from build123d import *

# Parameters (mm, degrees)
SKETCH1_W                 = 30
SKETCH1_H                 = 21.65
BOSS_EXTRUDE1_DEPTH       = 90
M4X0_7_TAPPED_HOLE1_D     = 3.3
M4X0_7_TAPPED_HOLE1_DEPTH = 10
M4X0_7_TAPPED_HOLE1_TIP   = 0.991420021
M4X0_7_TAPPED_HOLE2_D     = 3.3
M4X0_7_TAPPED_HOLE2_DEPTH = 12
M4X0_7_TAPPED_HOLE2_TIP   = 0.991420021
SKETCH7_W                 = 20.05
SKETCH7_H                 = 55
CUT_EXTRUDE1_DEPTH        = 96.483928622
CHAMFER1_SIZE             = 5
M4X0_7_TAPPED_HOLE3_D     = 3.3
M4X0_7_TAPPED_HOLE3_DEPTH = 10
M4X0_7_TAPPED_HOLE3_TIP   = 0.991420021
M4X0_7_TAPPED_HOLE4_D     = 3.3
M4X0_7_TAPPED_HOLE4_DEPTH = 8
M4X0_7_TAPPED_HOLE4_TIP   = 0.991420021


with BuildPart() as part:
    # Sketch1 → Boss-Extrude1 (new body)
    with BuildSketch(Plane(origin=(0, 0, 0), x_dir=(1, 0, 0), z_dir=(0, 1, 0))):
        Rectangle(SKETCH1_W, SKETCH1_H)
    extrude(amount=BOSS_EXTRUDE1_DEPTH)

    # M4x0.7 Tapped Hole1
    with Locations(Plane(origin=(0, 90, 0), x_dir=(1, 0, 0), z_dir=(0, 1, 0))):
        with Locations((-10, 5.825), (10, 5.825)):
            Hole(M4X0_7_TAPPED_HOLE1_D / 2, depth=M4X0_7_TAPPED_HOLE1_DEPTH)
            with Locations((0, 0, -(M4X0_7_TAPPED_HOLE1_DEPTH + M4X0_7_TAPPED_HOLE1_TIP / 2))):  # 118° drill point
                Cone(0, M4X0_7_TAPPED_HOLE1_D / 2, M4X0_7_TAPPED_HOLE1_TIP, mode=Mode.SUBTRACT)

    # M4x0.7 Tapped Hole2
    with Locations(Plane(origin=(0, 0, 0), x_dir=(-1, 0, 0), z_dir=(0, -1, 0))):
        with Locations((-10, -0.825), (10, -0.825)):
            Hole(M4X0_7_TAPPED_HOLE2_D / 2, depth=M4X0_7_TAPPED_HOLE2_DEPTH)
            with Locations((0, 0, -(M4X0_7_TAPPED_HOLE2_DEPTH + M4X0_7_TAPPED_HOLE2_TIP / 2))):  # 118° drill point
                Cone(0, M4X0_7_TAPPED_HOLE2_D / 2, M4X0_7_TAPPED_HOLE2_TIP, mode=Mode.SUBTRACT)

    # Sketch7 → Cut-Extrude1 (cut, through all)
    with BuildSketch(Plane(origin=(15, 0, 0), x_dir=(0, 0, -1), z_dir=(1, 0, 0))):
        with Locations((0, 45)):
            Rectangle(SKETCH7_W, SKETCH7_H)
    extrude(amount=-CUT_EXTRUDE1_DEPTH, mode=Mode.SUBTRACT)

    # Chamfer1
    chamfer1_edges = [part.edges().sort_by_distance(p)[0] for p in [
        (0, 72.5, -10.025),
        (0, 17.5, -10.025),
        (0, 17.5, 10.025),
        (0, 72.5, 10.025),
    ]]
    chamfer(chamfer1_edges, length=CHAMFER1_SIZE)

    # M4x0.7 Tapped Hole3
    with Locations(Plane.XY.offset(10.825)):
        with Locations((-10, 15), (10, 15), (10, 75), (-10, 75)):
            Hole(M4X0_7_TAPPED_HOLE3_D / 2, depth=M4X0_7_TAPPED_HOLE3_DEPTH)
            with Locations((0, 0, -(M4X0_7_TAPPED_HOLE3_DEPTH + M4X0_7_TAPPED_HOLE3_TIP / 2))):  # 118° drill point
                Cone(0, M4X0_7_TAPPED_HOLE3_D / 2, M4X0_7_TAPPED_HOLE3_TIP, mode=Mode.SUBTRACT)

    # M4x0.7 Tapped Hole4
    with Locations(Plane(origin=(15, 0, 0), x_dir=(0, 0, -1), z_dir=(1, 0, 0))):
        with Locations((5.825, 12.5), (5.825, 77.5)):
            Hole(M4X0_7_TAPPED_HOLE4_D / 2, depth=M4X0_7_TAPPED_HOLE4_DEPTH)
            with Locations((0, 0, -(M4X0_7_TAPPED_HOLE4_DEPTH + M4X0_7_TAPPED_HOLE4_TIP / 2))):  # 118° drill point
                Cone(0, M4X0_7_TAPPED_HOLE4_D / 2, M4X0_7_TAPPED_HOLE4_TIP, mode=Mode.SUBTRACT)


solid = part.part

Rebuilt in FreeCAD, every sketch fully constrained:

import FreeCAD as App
import Part
import Sketcher

V = App.Vector
Q = App.Units.Quantity


def edges_at(feature, points):
    """Names of the edges that pass closest to the given points."""
    edges = feature.Shape.Edges
    near = lambda p: min(range(len(edges)), key=lambda i: edges[i].distToShape(Part.Vertex(*p))[0])
    return sorted({f"Edge{near(p) + 1}" for p in points})

doc = App.newDocument("Part")
body = doc.addObject("PartDesign::Body", "Body")

sketch1 = body.newObject("Sketcher::SketchObject", "Sketch")
sketch1.AttachmentSupport = (doc.getObject("XZ_Plane"), [""])
sketch1.MapMode = "FlatFace"
sketch1.addGeometry(Part.LineSegment(V(-15, -10.825, 0), V(-15, 10.825, 0)), False)
sketch1.addGeometry(Part.LineSegment(V(-15, 10.825, 0), V(15, 10.825, 0)), False)
sketch1.addGeometry(Part.LineSegment(V(15, 10.825, 0), V(15, -10.825, 0)), False)
sketch1.addGeometry(Part.LineSegment(V(15, -10.825, 0), V(-15, -10.825, 0)), False)
sketch1.addConstraint(Sketcher.Constraint("Coincident", 0, 2, 1, 1))
sketch1.addConstraint(Sketcher.Constraint("Coincident", 1, 2, 2, 1))
sketch1.addConstraint(Sketcher.Constraint("Coincident", 2, 2, 3, 1))
sketch1.addConstraint(Sketcher.Constraint("Coincident", 3, 2, 0, 1))
sketch1.addConstraint(Sketcher.Constraint("Vertical", 0))
sketch1.addConstraint(Sketcher.Constraint("Horizontal", 1))
sketch1.addConstraint(Sketcher.Constraint("Vertical", 2))
sketch1.addConstraint(Sketcher.Constraint("Horizontal", 3))
sketch1.addConstraint(Sketcher.Constraint("Symmetric", 0, 2, 2, 2, -1, 1))
sketch1.addConstraint(Sketcher.Constraint("DistanceX", 1, 1, 1, 2, Q("30 mm")))
sketch1.addConstraint(Sketcher.Constraint("DistanceY", 0, 1, 0, 2, Q("21.65 mm")))
pad1 = body.newObject("PartDesign::Pad", "Pad")
pad1.Profile = sketch1
pad1.Length = 90
pad1.Reversed = True

sketch2 = body.newObject("Sketcher::SketchObject", "Sketch001")
sketch2.AttachmentSupport = (doc.getObject("XZ_Plane"), [""])
sketch2.MapMode = "FlatFace"
sketch2.AttachmentOffset = App.Placement(V(0, 0, -90), App.Rotation())
sketch2.addGeometry(Part.Circle(V(-10, -5.825, 0), V(0, 0, 1), 1.65), False)
sketch2.addGeometry(Part.Circle(V(10, -5.825, 0), V(0, 0, 1), 1.65), False)
sketch2.addConstraint(Sketcher.Constraint("Equal", 0, 1))
sketch2.addConstraint(Sketcher.Constraint("Symmetric", 0, 3, 1, 3, -2))
sketch2.addConstraint(Sketcher.Constraint("Diameter", 0, Q("3.3 mm")))
sketch2.addConstraint(Sketcher.Constraint("DistanceX", 0, 3, -1, 1, Q("10 mm")))
sketch2.addConstraint(Sketcher.Constraint("DistanceY", 0, 3, -1, 1, Q("5.825 mm")))
doc.recompute()
hole = body.newObject("PartDesign::Hole", "Hole")
hole.Profile = sketch2
hole.ThreadType = "None"
hole.Diameter = 3.3
hole.DepthType = "Dimension"
hole.Depth = 10
hole.DrillPoint = "Angled"
hole.DrillPointAngle = 118
hole.Reversed = True

sketch3 = body.newObject("Sketcher::SketchObject", "Sketch002")
sketch3.AttachmentSupport = (doc.getObject("XZ_Plane"), [""])
sketch3.MapMode = "FlatFace"
sketch3.addGeometry(Part.Circle(V(10, 0.825, 0), V(0, 0, 1), 1.65), False)
sketch3.addGeometry(Part.Circle(V(-10, 0.825, 0), V(0, 0, 1), 1.65), False)
sketch3.addConstraint(Sketcher.Constraint("Equal", 0, 1))
sketch3.addConstraint(Sketcher.Constraint("Symmetric", 0, 3, 1, 3, -2))
sketch3.addConstraint(Sketcher.Constraint("Diameter", 0, Q("3.3 mm")))
sketch3.addConstraint(Sketcher.Constraint("DistanceX", -1, 1, 0, 3, Q("10 mm")))
sketch3.addConstraint(Sketcher.Constraint("DistanceY", -1, 1, 0, 3, Q("0.825 mm")))
doc.recompute()
hole2 = body.newObject("PartDesign::Hole", "Hole001")
hole2.Profile = sketch3
hole2.ThreadType = "None"
hole2.Diameter = 3.3
hole2.DepthType = "Dimension"
hole2.Depth = 12
hole2.DrillPoint = "Angled"
hole2.DrillPointAngle = 118

sketch4 = body.newObject("Sketcher::SketchObject", "Sketch003")
sketch4.AttachmentSupport = (doc.getObject("YZ_Plane"), [""])
sketch4.MapMode = "FlatFace"
sketch4.AttachmentOffset = App.Placement(V(0, 0, 15), App.Rotation())
sketch4.addGeometry(Part.LineSegment(V(72.5, 10.025, 0), V(17.5, 10.025, 0)), False)
sketch4.addGeometry(Part.LineSegment(V(17.5, 10.025, 0), V(17.5, -10.025, 0)), False)
sketch4.addGeometry(Part.LineSegment(V(17.5, -10.025, 0), V(72.5, -10.025, 0)), False)
sketch4.addGeometry(Part.LineSegment(V(72.5, -10.025, 0), V(72.5, 10.025, 0)), False)
sketch4.addConstraint(Sketcher.Constraint("Coincident", 0, 2, 1, 1))
sketch4.addConstraint(Sketcher.Constraint("Coincident", 1, 2, 2, 1))
sketch4.addConstraint(Sketcher.Constraint("Coincident", 2, 2, 3, 1))
sketch4.addConstraint(Sketcher.Constraint("Coincident", 3, 2, 0, 1))
sketch4.addConstraint(Sketcher.Constraint("Horizontal", 0))
sketch4.addConstraint(Sketcher.Constraint("Vertical", 1))
sketch4.addConstraint(Sketcher.Constraint("Horizontal", 2))
sketch4.addConstraint(Sketcher.Constraint("Vertical", 3))
sketch4.addConstraint(Sketcher.Constraint("DistanceX", 0, 2, 0, 1, Q("55 mm")))
sketch4.addConstraint(Sketcher.Constraint("DistanceY", 1, 2, 1, 1, Q("20.05 mm")))
sketch4.addConstraint(Sketcher.Constraint("DistanceX", -1, 1, 0, 2, Q("17.5 mm")))
sketch4.addConstraint(Sketcher.Constraint("DistanceY", -1, 1, 0, 2, Q("10.025 mm")))
pocket1 = body.newObject("PartDesign::Pocket", "Pocket")
pocket1.Profile = sketch4
pocket1.Type = "ThroughAll"
doc.recompute()

chamfer = body.newObject("PartDesign::Chamfer", "Chamfer")
chamfer.Base = (pocket1, edges_at(pocket1, [
    (0, 72.5, -10.025),
    (0, 17.5, -10.025),
    (0, 17.5, 10.025),
    (0, 72.5, 10.025),
]))
chamfer.Size = 5

sketch5 = body.newObject("Sketcher::SketchObject", "Sketch004")
sketch5.AttachmentSupport = (doc.getObject("XY_Plane"), [""])
sketch5.MapMode = "FlatFace"
sketch5.AttachmentOffset = App.Placement(V(0, 0, 10.825), App.Rotation())
sketch5.addGeometry(Part.Circle(V(-10, 15, 0), V(0, 0, 1), 1.65), False)
sketch5.addGeometry(Part.Circle(V(10, 15, 0), V(0, 0, 1), 1.65), False)
sketch5.addGeometry(Part.Circle(V(10, 75, 0), V(0, 0, 1), 1.65), False)
sketch5.addGeometry(Part.Circle(V(-10, 75, 0), V(0, 0, 1), 1.65), False)
sketch5.addConstraint(Sketcher.Constraint("Equal", 0, 1))
sketch5.addConstraint(Sketcher.Constraint("Equal", 1, 2))
sketch5.addConstraint(Sketcher.Constraint("Equal", 2, 3))
sketch5.addConstraint(Sketcher.Constraint("Symmetric", 0, 3, 1, 3, -2))
sketch5.addConstraint(Sketcher.Constraint("Symmetric", 2, 3, 3, 3, -2))
sketch5.addConstraint(Sketcher.Constraint("Vertical", 1, 3, 2, 3))
sketch5.addConstraint(Sketcher.Constraint("Diameter", 0, Q("3.3 mm")))
sketch5.addConstraint(Sketcher.Constraint("DistanceX", 0, 3, -1, 1, Q("10 mm")))
sketch5.addConstraint(Sketcher.Constraint("DistanceY", -1, 1, 0, 3, Q("15 mm")))
sketch5.addConstraint(Sketcher.Constraint("DistanceY", -1, 1, 2, 3, Q("75 mm")))
doc.recompute()
hole3 = body.newObject("PartDesign::Hole", "Hole002")
hole3.Profile = sketch5
hole3.ThreadType = "None"
hole3.Diameter = 3.3
hole3.DepthType = "Dimension"
hole3.Depth = 10
hole3.DrillPoint = "Angled"
hole3.DrillPointAngle = 118

sketch6 = body.newObject("Sketcher::SketchObject", "Sketch005")
sketch6.AttachmentSupport = (doc.getObject("YZ_Plane"), [""])
sketch6.MapMode = "FlatFace"
sketch6.AttachmentOffset = App.Placement(V(0, 0, 15), App.Rotation())
sketch6.addGeometry(Part.Circle(V(12.5, -5.825, 0), V(0, 0, 1), 1.65), False)
sketch6.addGeometry(Part.Circle(V(77.5, -5.825, 0), V(0, 0, 1), 1.65), False)
sketch6.addConstraint(Sketcher.Constraint("Equal", 0, 1))
sketch6.addConstraint(Sketcher.Constraint("Horizontal", 0, 3, 1, 3))
sketch6.addConstraint(Sketcher.Constraint("Diameter", 0, Q("3.3 mm")))
sketch6.addConstraint(Sketcher.Constraint("DistanceX", 0, 3, 1, 3, Q("65 mm")))
sketch6.addConstraint(Sketcher.Constraint("DistanceX", -1, 1, 0, 3, Q("12.5 mm")))
sketch6.addConstraint(Sketcher.Constraint("DistanceY", 0, 3, -1, 1, Q("5.825 mm")))
doc.recompute()
hole4 = body.newObject("PartDesign::Hole", "Hole003")
hole4.Profile = sketch6
hole4.ThreadType = "None"
hole4.Diameter = 3.3
hole4.DepthType = "Dimension"
hole4.Depth = 8
hole4.DrillPoint = "Angled"
hole4.DrillPointAngle = 118

doc.recompute()
